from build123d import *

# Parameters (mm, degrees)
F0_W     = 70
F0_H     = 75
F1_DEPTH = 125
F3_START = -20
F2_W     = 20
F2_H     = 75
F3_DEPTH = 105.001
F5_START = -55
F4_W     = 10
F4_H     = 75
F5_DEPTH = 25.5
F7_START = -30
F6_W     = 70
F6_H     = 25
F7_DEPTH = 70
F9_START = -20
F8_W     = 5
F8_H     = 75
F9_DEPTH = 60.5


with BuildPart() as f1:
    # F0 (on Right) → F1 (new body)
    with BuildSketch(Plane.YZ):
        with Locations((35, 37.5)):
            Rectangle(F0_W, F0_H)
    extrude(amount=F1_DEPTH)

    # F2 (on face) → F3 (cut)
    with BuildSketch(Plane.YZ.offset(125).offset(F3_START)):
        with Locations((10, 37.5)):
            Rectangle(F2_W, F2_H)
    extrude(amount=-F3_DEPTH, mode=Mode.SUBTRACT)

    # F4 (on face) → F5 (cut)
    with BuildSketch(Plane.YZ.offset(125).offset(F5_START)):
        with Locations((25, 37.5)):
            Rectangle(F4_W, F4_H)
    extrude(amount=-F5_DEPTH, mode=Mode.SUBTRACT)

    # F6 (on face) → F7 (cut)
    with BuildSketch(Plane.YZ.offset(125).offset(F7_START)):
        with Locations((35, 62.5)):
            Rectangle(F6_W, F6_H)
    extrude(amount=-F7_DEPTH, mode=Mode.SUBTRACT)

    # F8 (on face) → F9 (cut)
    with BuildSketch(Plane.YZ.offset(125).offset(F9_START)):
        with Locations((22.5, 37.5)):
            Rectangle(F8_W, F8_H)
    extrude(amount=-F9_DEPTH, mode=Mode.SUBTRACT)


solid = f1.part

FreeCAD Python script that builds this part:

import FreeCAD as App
import Part
import Sketcher
from FreeCAD import Vector


def add_polygon(sketch, points):
    """Adds a closed chain of lines whose ends are joined by coincident constraints."""
    first, n = sketch.GeometryCount, len(points)
    for a, b in zip(points, points[1:] + points[:1]):
        sketch.addGeometry(Part.LineSegment(App.Vector(*a, 0), App.Vector(*b, 0)), False)
    for i in range(n):
        sketch.addConstraint(Sketcher.Constraint("Coincident", first + i, 2, first + (i + 1) % n, 1))

doc = App.newDocument("Part")
body = doc.addObject("PartDesign::Body", "Body")

# Sketch on YZ plane
sketch1 = body.newObject("Sketcher::SketchObject", "Sketch")
sketch1.AttachmentSupport = (doc.getObject("YZ_Plane"), [""])
sketch1.MapMode = "FlatFace"
add_polygon(sketch1, [(0, 75), (0, 0), (70, 0), (70, 75)])  # lines 0-3
sketch1.addConstraint(Sketcher.Constraint("Vertical", 0))
sketch1.addConstraint(Sketcher.Constraint("Horizontal", 1))
sketch1.addConstraint(Sketcher.Constraint("Vertical", 2))
sketch1.addConstraint(Sketcher.Constraint("Horizontal", 3))
sketch1.addConstraint(Sketcher.Constraint("Coincident", 0, 2, -1, 1))
sketch1.addConstraint(Sketcher.Constraint("DistanceX", 1, 1, 1, 2, 70.0))
sketch1.addConstraint(Sketcher.Constraint("DistanceY", 0, 2, 0, 1, 75.0))
pad1 = body.newObject("PartDesign::Pad", "Pad")
pad1.Profile = sketch1
pad1.Length = 125

# Sketch on YZ plane
sketch2 = body.newObject("Sketcher::SketchObject", "Sketch001")
sketch2.AttachmentSupport = (doc.getObject("YZ_Plane"), [""])
sketch2.MapMode = "FlatFace"
sketch2.AttachmentOffset = App.Placement(Vector(0, 0, 105), App.Rotation())
add_polygon(sketch2, [(0, 75), (0, 0), (20, 0), (20, 75)])  # lines 0-3
sketch2.addConstraint(Sketcher.Constraint("Vertical", 0))
sketch2.addConstraint(Sketcher.Constraint("Horizontal", 1))
sketch2.addConstraint(Sketcher.Constraint("Vertical", 2))
sketch2.addConstraint(Sketcher.Constraint("Horizontal", 3))
sketch2.addConstraint(Sketcher.Constraint("Coincident", 0, 2, -1, 1))
sketch2.addConstraint(Sketcher.Constraint("DistanceX", 1, 1, 1, 2, 20.0))
sketch2.addConstraint(Sketcher.Constraint("DistanceY", 0, 2, 0, 1, 75.0))
pocket1 = body.newObject("PartDesign::Pocket", "Pocket")
pocket1.Profile = sketch2
pocket1.Length = 105.001

# Sketch on YZ plane
sketch3 = body.newObject("Sketcher::SketchObject", "Sketch002")
sketch3.AttachmentSupport = (doc.getObject("YZ_Plane"), [""])
sketch3.MapMode = "FlatFace"
sketch3.AttachmentOffset = App.Placement(Vector(0, 0, 70), App.Rotation())
add_polygon(sketch3, [(20, 75), (20, 0), (30, 0), (30, 75)])  # lines 0-3
sketch3.addConstraint(Sketcher.Constraint("Vertical", 0))
sketch3.addConstraint(Sketcher.Constraint("Horizontal", 1))
sketch3.addConstraint(Sketcher.Constraint("Vertical", 2))
sketch3.addConstraint(Sketcher.Constraint("Horizontal", 3))
sketch3.addConstraint(Sketcher.Constraint("PointOnObject", 0, 2, -1))
sketch3.addConstraint(Sketcher.Constraint("DistanceX", 1, 1, 1, 2, 10.0))
sketch3.addConstraint(Sketcher.Constraint("DistanceY", 0, 2, 0, 1, 75.0))
sketch3.addConstraint(Sketcher.Constraint("DistanceX", -1, 1, 0, 2, 20.0))
pocket2 = body.newObject("PartDesign::Pocket", "Pocket001")
pocket2.Profile = sketch3
pocket2.Length = 25.5

# Sketch on YZ plane
sketch4 = body.newObject("Sketcher::SketchObject", "Sketch003")
sketch4.AttachmentSupport = (doc.getObject("YZ_Plane"), [""])
sketch4.MapMode = "FlatFace"
sketch4.AttachmentOffset = App.Placement(Vector(0, 0, 95), App.Rotation())
add_polygon(sketch4, [(0, 75), (0, 50), (70, 50), (70, 75)])  # lines 0-3
sketch4.addConstraint(Sketcher.Constraint("Vertical", 0))
sketch4.addConstraint(Sketcher.Constraint("Horizontal", 1))
sketch4.addConstraint(Sketcher.Constraint("Vertical", 2))
sketch4.addConstraint(Sketcher.Constraint("Horizontal", 3))
sketch4.addConstraint(Sketcher.Constraint("PointOnObject", 0, 2, -2))
sketch4.addConstraint(Sketcher.Constraint("DistanceX", 1, 1, 1, 2, 70.0))
sketch4.addConstraint(Sketcher.Constraint("DistanceY", 0, 2, 0, 1, 25.0))
sketch4.addConstraint(Sketcher.Constraint("DistanceY", -1, 1, 0, 2, 50.0))
pocket3 = body.newObject("PartDesign::Pocket", "Pocket002")
pocket3.Profile = sketch4
pocket3.Length = 70

# Sketch on YZ plane
sketch5 = body.newObject("Sketcher::SketchObject", "Sketch004")
sketch5.AttachmentSupport = (doc.getObject("YZ_Plane"), [""])
sketch5.MapMode = "FlatFace"
sketch5.AttachmentOffset = App.Placement(Vector(0, 0, 105), App.Rotation())
add_polygon(sketch5, [(20, 75), (20, 0), (25, 0), (25, 75)])  # lines 0-3
sketch5.addConstraint(Sketcher.Constraint("Vertical", 0))
sketch5.addConstraint(Sketcher.Constraint("Horizontal", 1))
sketch5.addConstraint(Sketcher.Constraint("Vertical", 2))
sketch5.addConstraint(Sketcher.Constraint("Horizontal", 3))
sketch5.addConstraint(Sketcher.Constraint("PointOnObject", 0, 2, -1))
sketch5.addConstraint(Sketcher.Constraint("DistanceX", 1, 1, 1, 2, 5.0))
sketch5.addConstraint(Sketcher.Constraint("DistanceY", 0, 2, 0, 1, 75.0))
sketch5.addConstraint(Sketcher.Constraint("DistanceX", -1, 1, 0, 2, 20.0))
pocket4 = body.newObject("PartDesign::Pocket", "Pocket003")
pocket4.Profile = sketch5
pocket4.Length = 60.5

doc.recompute()
